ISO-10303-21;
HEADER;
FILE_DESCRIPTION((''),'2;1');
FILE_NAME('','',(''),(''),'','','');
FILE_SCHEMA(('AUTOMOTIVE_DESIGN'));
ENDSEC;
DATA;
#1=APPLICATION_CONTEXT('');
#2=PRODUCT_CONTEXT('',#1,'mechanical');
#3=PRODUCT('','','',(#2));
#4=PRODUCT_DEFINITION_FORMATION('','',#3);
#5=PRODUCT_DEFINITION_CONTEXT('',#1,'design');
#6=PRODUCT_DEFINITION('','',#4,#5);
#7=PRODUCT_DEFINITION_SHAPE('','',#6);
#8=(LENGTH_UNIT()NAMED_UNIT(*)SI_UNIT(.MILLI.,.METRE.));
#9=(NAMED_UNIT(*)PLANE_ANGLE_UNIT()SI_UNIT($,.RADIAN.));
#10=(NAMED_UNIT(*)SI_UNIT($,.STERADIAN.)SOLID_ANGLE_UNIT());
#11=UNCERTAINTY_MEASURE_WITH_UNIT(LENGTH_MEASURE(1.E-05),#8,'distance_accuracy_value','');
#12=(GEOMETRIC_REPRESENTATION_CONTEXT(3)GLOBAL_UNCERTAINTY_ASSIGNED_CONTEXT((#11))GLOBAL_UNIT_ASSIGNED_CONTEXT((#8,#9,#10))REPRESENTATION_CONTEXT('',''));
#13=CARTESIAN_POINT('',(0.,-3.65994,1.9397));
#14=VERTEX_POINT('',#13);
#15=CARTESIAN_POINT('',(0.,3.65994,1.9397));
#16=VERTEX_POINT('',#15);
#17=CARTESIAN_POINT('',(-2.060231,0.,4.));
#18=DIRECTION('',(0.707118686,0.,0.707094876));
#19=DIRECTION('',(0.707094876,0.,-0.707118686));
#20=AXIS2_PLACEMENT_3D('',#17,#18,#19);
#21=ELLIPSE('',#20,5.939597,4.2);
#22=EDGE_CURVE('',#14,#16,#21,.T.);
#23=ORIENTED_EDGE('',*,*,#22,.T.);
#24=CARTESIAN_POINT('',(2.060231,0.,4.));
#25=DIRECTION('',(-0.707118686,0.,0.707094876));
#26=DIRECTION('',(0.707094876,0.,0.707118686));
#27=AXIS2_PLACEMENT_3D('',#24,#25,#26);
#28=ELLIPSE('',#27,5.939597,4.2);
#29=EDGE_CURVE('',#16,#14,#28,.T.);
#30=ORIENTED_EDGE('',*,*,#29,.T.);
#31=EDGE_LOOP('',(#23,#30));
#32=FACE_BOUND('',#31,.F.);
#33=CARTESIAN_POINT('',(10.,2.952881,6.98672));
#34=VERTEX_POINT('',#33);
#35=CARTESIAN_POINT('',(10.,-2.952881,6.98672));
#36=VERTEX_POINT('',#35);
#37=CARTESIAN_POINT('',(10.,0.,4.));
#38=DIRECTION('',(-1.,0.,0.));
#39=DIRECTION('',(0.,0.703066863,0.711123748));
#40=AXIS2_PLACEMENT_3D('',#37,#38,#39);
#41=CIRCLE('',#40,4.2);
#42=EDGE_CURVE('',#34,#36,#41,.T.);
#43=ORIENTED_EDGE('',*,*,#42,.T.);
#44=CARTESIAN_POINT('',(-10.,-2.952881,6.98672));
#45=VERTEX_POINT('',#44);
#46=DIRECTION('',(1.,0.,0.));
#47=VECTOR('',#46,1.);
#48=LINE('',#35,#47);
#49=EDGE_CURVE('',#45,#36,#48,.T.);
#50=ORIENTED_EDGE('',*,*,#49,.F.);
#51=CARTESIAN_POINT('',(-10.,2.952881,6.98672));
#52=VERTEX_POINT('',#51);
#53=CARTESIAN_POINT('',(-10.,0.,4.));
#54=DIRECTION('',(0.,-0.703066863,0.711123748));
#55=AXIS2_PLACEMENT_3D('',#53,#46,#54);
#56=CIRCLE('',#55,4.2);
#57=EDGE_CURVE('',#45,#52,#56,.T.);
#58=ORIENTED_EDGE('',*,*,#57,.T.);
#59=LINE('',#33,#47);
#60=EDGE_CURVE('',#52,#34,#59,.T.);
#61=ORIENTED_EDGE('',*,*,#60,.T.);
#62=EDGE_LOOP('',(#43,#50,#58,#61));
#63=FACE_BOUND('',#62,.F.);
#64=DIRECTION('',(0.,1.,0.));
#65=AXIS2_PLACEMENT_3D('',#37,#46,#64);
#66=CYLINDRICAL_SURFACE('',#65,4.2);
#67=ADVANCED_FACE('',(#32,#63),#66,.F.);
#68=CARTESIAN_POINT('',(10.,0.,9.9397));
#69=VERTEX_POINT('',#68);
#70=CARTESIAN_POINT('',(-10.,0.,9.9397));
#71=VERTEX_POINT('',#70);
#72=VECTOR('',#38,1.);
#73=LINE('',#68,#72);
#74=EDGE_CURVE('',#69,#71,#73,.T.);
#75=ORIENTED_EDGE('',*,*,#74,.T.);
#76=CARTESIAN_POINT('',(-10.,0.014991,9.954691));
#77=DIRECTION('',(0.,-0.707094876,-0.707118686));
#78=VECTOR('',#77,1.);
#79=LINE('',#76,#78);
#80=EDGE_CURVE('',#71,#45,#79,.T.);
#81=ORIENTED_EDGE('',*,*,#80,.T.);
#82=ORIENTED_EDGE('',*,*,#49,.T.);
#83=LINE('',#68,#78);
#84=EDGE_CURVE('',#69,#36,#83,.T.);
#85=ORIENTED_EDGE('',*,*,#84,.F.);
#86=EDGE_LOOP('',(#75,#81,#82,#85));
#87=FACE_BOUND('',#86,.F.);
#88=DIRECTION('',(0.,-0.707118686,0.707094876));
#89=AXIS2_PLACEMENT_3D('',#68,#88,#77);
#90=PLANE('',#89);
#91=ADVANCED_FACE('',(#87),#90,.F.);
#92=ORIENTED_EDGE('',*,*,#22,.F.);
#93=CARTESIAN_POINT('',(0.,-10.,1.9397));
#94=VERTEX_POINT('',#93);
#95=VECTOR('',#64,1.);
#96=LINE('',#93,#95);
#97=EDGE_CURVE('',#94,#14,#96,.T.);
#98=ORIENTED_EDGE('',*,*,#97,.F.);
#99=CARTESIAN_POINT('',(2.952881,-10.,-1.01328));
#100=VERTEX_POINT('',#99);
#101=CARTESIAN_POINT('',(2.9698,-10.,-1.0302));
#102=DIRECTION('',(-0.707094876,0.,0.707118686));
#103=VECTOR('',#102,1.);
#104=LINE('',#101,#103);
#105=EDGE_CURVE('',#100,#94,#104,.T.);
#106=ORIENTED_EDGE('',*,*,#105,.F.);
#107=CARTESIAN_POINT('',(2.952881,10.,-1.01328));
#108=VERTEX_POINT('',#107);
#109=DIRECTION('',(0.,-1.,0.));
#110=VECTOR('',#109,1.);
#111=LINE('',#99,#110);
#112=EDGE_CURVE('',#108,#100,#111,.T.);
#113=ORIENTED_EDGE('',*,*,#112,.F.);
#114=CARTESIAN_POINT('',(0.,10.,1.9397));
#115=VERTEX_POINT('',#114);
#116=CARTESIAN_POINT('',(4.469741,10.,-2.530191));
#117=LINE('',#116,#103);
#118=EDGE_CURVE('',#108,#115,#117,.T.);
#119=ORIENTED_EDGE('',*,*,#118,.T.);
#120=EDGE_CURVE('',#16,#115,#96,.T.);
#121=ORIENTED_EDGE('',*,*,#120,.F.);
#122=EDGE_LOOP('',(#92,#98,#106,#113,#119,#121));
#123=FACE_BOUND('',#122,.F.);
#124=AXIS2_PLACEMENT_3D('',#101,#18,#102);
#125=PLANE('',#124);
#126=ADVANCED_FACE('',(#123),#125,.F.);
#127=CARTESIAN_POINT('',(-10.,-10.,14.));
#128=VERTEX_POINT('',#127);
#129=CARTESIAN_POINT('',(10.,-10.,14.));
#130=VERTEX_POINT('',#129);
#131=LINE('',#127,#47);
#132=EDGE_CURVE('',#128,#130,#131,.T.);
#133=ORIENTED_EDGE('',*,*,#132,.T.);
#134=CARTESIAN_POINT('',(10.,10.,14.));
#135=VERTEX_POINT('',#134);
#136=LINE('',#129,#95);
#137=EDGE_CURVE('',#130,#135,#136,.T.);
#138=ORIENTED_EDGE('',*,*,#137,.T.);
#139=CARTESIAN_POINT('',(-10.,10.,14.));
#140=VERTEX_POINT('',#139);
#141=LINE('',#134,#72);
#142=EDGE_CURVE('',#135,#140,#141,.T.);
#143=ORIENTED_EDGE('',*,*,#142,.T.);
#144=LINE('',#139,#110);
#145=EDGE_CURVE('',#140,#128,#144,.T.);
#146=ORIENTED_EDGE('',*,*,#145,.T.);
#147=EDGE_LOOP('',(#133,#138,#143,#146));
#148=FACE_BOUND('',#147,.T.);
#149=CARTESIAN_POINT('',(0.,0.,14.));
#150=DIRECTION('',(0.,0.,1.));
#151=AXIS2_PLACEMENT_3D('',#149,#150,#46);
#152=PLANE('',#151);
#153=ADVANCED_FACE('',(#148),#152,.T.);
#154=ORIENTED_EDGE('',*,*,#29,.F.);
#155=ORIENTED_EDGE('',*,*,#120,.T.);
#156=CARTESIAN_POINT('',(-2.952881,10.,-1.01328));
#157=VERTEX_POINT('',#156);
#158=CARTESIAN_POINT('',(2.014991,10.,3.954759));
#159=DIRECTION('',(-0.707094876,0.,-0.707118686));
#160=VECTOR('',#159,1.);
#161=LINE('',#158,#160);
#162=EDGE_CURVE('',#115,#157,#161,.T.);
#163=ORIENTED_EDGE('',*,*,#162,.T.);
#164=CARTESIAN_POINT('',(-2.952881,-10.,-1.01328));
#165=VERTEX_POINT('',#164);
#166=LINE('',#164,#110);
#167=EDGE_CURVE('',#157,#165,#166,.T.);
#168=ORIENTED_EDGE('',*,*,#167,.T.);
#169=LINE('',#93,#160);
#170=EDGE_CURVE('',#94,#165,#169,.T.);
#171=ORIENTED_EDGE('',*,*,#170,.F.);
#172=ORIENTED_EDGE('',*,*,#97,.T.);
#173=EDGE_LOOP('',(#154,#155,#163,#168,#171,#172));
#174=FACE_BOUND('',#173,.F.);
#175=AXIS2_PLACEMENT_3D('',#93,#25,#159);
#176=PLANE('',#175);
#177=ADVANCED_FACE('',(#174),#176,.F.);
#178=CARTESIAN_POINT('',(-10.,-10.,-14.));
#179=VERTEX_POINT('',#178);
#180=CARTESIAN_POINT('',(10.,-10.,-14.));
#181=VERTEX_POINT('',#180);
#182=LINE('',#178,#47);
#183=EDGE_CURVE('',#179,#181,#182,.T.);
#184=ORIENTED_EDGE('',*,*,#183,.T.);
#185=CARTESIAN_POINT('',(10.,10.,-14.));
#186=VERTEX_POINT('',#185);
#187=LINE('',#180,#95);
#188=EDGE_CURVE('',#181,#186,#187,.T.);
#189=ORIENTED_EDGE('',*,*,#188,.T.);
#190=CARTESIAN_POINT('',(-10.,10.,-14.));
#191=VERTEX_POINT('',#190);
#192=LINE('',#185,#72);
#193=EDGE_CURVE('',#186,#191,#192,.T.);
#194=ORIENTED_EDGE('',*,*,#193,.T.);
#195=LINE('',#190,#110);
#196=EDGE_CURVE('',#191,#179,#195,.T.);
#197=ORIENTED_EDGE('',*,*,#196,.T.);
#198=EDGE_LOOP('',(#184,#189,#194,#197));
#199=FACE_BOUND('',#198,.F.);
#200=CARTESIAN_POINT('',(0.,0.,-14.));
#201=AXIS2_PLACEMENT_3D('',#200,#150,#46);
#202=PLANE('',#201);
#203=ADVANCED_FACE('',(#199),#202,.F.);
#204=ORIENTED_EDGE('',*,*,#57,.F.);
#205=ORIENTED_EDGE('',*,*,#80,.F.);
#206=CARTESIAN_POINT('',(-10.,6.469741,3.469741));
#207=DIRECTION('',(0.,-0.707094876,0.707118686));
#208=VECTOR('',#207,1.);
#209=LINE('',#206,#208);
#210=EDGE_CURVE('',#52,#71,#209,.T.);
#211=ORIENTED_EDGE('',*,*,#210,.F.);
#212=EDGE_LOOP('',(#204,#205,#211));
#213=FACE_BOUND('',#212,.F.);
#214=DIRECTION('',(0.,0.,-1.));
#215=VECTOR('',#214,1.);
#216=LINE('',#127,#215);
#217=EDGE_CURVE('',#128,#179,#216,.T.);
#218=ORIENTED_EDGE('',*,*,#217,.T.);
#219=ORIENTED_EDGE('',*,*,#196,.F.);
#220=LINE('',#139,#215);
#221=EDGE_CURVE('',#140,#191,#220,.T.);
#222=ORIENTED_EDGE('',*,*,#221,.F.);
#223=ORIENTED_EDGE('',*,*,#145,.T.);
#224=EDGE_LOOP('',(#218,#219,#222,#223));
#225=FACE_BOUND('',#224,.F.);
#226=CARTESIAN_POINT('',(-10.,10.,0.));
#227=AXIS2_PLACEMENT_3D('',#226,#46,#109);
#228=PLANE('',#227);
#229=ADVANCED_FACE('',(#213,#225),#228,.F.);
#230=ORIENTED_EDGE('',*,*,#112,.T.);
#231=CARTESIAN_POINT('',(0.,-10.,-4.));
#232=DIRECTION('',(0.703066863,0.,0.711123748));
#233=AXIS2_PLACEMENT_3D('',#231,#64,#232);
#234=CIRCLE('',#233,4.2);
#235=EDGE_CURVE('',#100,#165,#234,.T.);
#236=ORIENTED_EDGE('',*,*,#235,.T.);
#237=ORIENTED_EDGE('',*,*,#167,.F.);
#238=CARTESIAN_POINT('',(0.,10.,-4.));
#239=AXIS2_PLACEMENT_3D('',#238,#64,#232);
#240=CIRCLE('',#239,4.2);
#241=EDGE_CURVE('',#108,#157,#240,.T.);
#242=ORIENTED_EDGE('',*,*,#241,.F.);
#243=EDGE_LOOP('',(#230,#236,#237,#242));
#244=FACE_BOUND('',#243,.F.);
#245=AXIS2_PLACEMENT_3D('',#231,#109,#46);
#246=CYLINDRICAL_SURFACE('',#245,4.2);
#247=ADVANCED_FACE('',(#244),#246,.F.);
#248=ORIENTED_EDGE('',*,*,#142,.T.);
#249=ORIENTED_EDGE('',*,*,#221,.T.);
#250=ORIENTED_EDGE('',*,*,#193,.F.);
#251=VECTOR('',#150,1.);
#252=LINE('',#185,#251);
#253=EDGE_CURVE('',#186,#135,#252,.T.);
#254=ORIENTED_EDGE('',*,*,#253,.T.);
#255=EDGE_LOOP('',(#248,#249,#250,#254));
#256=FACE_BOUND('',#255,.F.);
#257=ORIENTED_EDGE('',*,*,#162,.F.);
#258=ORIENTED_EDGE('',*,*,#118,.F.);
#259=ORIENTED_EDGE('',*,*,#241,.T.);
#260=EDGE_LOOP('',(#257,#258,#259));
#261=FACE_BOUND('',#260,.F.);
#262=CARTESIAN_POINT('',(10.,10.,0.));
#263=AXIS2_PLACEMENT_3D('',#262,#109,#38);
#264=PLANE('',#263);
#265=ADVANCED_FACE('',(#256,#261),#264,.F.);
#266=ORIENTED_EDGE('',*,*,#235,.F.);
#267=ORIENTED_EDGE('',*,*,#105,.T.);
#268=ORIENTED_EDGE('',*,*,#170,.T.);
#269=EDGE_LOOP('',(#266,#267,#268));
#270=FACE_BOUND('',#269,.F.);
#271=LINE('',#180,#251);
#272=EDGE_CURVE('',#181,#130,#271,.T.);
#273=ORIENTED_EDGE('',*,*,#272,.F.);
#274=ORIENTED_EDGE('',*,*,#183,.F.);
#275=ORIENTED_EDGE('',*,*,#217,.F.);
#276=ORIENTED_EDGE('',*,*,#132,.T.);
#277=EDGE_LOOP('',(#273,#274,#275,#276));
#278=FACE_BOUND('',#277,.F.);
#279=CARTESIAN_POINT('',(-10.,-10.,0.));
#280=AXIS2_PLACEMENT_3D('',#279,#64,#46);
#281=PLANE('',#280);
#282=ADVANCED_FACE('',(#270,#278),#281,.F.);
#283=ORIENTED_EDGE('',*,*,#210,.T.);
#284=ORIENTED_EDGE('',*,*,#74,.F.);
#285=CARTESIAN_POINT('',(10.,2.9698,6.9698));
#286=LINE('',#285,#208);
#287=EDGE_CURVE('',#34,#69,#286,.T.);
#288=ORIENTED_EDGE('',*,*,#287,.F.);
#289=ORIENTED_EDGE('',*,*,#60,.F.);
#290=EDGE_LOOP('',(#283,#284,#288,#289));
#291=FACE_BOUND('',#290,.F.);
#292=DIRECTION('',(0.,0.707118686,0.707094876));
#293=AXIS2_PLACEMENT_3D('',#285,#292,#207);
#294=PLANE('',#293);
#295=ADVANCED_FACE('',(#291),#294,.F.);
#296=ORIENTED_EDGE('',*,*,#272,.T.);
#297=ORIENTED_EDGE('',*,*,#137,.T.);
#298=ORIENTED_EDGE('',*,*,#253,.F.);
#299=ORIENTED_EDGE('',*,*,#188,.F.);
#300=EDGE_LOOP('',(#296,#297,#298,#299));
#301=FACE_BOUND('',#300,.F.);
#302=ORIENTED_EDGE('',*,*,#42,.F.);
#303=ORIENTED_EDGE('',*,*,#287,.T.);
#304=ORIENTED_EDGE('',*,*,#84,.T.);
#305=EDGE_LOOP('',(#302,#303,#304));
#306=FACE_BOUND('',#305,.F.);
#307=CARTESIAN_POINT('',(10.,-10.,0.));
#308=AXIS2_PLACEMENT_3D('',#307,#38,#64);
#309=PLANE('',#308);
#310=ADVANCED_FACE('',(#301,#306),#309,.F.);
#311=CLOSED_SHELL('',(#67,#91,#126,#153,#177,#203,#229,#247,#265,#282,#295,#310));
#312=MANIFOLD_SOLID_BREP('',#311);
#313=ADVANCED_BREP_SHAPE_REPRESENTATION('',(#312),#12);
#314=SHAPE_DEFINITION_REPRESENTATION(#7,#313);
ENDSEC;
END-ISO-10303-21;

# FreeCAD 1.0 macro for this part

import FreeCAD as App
import Part
import Sketcher
from FreeCAD import Vector

doc = App.newDocument("Part")
body = doc.addObject("PartDesign::Body", "Body")

sketch1 = body.newObject("Sketcher::SketchObject", "Sketch")
sketch1.AttachmentSupport = (doc.getObject("XY_Plane"), [""])
sketch1.MapMode = "FlatFace"
sketch1.addGeometry(Part.LineSegment(Vector(-10, 10, 0), Vector(-10, -10, 0)), False)
sketch1.addGeometry(Part.LineSegment(Vector(-10, -10, 0), Vector(10, -10, 0)), False)
sketch1.addGeometry(Part.LineSegment(Vector(10, -10, 0), Vector(10, 10, 0)), False)
sketch1.addGeometry(Part.LineSegment(Vector(10, 10, 0), Vector(-10, 10, 0)), False)
sketch1.addConstraint(Sketcher.Constraint("Coincident", 0, 2, 1, 1))
sketch1.addConstraint(Sketcher.Constraint("Coincident", 1, 2, 2, 1))
sketch1.addConstraint(Sketcher.Constraint("Coincident", 2, 2, 3, 1))
sketch1.addConstraint(Sketcher.Constraint("Coincident", 3, 2, 0, 1))
sketch1.addConstraint(Sketcher.Constraint("Vertical", 0))
sketch1.addConstraint(Sketcher.Constraint("Horizontal", 1))
sketch1.addConstraint(Sketcher.Constraint("Vertical", 2))
sketch1.addConstraint(Sketcher.Constraint("Horizontal", 3))
sketch1.addConstraint(Sketcher.Constraint("Symmetric", 0, 2, 2, 2, -1, 1))
sketch1.addConstraint(Sketcher.Constraint("Equal", 3, 0))
sketch1.addConstraint(Sketcher.Constraint("DistanceX", 0, 2, -1, 1, 10.0))
pad1 = body.newObject("PartDesign::Pad", "Pad")
pad1.Profile = sketch1
pad1.Length = 28
pad1.Midplane = True

sketch2 = body.newObject("Sketcher::SketchObject", "Sketch001")
sketch2.AttachmentSupport = (doc.getObject("XZ_Plane"), [""])
sketch2.MapMode = "FlatFace"
sketch2.AttachmentOffset = App.Placement(Vector(0, 0, 10), App.Rotation())
sketch2.addGeometry(Part.Circle(Vector(0, -4, 0), Vector(0, 0, 1), 4.2), False)
sketch2.addConstraint(Sketcher.Constraint("PointOnObject", 0, 3, -2))
sketch2.addConstraint(Sketcher.Constraint("Diameter", 0, 8.4))
sketch2.addConstraint(Sketcher.Constraint("DistanceY", 0, 3, -1, 1, 4.0))
pocket1 = body.newObject("PartDesign::Pocket", "Pocket")
pocket1.Profile = sketch2
pocket1.Type = "ThroughAll"

sketch3 = body.newObject("Sketcher::SketchObject", "Sketch002")
sketch3.AttachmentSupport = (doc.getObject("YZ_Plane"), [""])
sketch3.MapMode = "FlatFace"
sketch3.AttachmentOffset = App.Placement(Vector(0, 0, 10), App.Rotation())
sketch3.addGeometry(Part.Circle(Vector(0, 4, 0), Vector(0, 0, 1), 4.2), False)
sketch3.addConstraint(Sketcher.Constraint("PointOnObject", 0, 3, -2))
sketch3.addConstraint(Sketcher.Constraint("Diameter", 0, 8.4))
sketch3.addConstraint(Sketcher.Constraint("DistanceY", -1, 1, 0, 3, 4.0))
pocket2 = body.newObject("PartDesign::Pocket", "Pocket001")
pocket2.Profile = sketch3
pocket2.Type = "ThroughAll"

sketch4 = body.newObject("Sketcher::SketchObject", "Sketch003")
sketch4.AttachmentSupport = (doc.getObject("XZ_Plane"), [""])
sketch4.MapMode = "FlatFace"
sketch4.AttachmentOffset = App.Placement(Vector(0, 0, 10), App.Rotation())
sketch4.addGeometry(Part.LineSegment(Vector(-2.9698, -1.0302, 0), Vector(0, -4, 0)), False)
sketch4.addGeometry(Part.LineSegment(Vector(0, -4, 0), Vector(2.9698, -1.0302, 0)), False)
sketch4.addGeometry(Part.LineSegment(Vector(2.9698, -1.0302, 0), Vector(0, 1.9397, 0)), False)
sketch4.addGeometry(Part.LineSegment(Vector(0, 1.9397, 0), Vector(-2.9698, -1.0302, 0)), False)
sketch4.addConstraint(Sketcher.Constraint("Coincident", 0, 2, 1, 1))
sketch4.addConstraint(Sketcher.Constraint("Coincident", 1, 2, 2, 1))
sketch4.addConstraint(Sketcher.Constraint("Coincident", 2, 2, 3, 1))
sketch4.addConstraint(Sketcher.Constraint("Coincident", 3, 2, 0, 1))
sketch4.addConstraint(Sketcher.Constraint("Symmetric", 1, 2, 3, 2, -2))
sketch4.addConstraint(Sketcher.Constraint("PointOnObject", 0, 2, -2))
sketch4.addConstraint(Sketcher.Constraint("PointOnObject", 2, 2, -2))
sketch4.addConstraint(Sketcher.Constraint("Perpendicular", 0, 1))
sketch4.addConstraint(Sketcher.Constraint("Perpendicular", 1, 2))
sketch4.addConstraint(Sketcher.Constraint("DistanceY", 0, 2, -1, 1, 4.0))
sketch4.addConstraint(Sketcher.Constraint("Distance", 0, 4.2))
pocket3 = body.newObject("PartDesign::Pocket", "Pocket002")
pocket3.Profile = sketch4
pocket3.Type = "ThroughAll"

sketch5 = body.newObject("Sketcher::SketchObject", "Sketch004")
sketch5.AttachmentSupport = (doc.getObject("YZ_Plane"), [""])
sketch5.MapMode = "FlatFace"
sketch5.AttachmentOffset = App.Placement(Vector(0, 0, 10), App.Rotation())
sketch5.addGeometry(Part.LineSegment(Vector(-2.9698, 6.9698, 0), Vector(0, 4, 0)), False)
sketch5.addGeometry(Part.LineSegment(Vector(0, 4, 0), Vector(2.9698, 6.9698, 0)), False)
sketch5.addGeometry(Part.LineSegment(Vector(2.9698, 6.9698, 0), Vector(0, 9.9397, 0)), False)
sketch5.addGeometry(Part.LineSegment(Vector(0, 9.9397, 0), Vector(-2.9698, 6.9698, 0)), False)
sketch5.addConstraint(Sketcher.Constraint("Coincident", 0, 2, 1, 1))
sketch5.addConstraint(Sketcher.Constraint("Coincident", 1, 2, 2, 1))
sketch5.addConstraint(Sketcher.Constraint("Coincident", 2, 2, 3, 1))
sketch5.addConstraint(Sketcher.Constraint("Coincident", 3, 2, 0, 1))
sketch5.addConstraint(Sketcher.Constraint("Symmetric", 1, 2, 3, 2, -2))
sketch5.addConstraint(Sketcher.Constraint("PointOnObject", 0, 2, -2))
sketch5.addConstraint(Sketcher.Constraint("PointOnObject", 2, 2, -2))
sketch5.addConstraint(Sketcher.Constraint("Perpendicular", 0, 1))
sketch5.addConstraint(Sketcher.Constraint("Perpendicular", 1, 2))
sketch5.addConstraint(Sketcher.Constraint("DistanceY", -1, 1, 0, 2, 4.0))
sketch5.addConstraint(Sketcher.Constraint("Distance", 0, 4.2))
pocket4 = body.newObject("PartDesign::Pocket", "Pocket003")
pocket4.Profile = sketch5
pocket4.Type = "ThroughAll"

doc.recompute()
